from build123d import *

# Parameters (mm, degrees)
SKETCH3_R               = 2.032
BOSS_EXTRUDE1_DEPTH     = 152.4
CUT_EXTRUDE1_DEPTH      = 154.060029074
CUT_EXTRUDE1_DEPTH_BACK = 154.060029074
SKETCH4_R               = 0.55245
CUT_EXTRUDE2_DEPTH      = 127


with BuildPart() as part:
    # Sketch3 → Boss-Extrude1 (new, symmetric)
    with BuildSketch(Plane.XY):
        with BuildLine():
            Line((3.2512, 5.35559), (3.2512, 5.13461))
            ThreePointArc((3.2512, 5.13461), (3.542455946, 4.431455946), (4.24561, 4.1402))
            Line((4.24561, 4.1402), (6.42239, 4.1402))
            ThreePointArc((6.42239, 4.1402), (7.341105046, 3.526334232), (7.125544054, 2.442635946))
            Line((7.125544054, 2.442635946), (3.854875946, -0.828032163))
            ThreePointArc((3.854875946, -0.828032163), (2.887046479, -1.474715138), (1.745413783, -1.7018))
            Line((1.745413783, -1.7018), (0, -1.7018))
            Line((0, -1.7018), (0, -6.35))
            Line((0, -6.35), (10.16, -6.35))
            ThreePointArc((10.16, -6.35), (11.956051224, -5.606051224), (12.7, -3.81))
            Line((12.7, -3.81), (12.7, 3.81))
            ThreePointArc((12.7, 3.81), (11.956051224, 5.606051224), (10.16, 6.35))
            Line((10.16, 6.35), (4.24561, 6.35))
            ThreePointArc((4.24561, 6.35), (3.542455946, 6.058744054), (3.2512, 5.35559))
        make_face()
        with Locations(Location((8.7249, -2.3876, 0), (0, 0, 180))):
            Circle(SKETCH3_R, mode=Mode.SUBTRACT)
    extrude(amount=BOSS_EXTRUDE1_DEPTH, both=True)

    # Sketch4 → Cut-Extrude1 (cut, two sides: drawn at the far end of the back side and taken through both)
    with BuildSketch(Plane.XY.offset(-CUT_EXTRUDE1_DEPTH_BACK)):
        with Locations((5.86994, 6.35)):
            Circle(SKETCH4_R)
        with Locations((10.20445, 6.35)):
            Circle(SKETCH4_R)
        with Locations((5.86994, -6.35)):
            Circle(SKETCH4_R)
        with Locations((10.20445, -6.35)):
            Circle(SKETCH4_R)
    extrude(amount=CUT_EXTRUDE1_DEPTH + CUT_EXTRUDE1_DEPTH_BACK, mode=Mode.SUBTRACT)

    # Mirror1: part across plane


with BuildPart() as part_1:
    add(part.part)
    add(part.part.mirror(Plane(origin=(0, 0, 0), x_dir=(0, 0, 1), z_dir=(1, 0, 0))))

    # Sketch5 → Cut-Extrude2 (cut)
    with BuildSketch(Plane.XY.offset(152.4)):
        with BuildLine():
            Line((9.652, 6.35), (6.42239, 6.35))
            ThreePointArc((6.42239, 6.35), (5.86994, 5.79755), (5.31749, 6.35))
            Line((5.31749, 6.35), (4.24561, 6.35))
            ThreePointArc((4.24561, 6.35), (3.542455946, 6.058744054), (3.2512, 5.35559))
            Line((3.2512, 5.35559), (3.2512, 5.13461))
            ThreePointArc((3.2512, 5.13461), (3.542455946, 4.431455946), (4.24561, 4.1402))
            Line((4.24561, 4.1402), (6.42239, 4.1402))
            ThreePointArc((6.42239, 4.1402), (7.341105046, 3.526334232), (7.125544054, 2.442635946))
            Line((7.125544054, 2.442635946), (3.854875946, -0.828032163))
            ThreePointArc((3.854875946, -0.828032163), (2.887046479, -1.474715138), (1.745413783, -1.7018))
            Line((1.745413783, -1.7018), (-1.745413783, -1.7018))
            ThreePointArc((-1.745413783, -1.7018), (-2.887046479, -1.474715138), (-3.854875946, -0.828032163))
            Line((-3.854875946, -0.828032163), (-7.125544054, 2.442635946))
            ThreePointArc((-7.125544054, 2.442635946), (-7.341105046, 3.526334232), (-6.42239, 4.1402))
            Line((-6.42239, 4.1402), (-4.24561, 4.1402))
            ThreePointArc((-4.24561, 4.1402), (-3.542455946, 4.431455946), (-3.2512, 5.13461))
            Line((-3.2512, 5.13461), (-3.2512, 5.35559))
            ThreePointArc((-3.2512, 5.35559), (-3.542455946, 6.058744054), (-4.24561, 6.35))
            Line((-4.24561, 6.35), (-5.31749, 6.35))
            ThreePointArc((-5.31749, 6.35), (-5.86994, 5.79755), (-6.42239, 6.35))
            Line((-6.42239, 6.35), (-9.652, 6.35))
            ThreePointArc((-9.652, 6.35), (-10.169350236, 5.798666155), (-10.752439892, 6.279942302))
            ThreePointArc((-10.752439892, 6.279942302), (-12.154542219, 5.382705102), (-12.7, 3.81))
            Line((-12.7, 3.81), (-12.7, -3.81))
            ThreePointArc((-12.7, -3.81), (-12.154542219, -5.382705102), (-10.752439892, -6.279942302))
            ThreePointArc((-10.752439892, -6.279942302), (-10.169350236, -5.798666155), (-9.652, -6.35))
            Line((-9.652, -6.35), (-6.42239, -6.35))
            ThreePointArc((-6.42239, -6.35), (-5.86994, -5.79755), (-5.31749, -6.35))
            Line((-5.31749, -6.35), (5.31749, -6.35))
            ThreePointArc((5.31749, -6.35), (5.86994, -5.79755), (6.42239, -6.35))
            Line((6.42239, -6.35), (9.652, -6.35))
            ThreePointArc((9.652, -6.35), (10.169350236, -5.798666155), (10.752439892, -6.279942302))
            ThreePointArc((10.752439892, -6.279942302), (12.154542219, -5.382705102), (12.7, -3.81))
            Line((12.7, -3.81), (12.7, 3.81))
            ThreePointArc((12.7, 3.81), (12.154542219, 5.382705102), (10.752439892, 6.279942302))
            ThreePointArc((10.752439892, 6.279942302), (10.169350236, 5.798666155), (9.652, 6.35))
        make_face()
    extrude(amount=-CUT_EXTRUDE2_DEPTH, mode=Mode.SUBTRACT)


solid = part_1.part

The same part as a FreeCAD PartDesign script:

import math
import FreeCAD as App
import Part
import Sketcher
Q = App.Units.Quantity

doc = App.newDocument("Part")
body = doc.addObject("PartDesign::Body", "Body")

sketch1 = body.newObject("Sketcher::SketchObject", "Sketch")
sketch1.AttachmentSupport = (doc.getObject("XY_Plane"), [""])
sketch1.MapMode = "FlatFace"
sketch1.addGeometry(Part.LineSegment(App.Vector(3.25, 5.36, 0), App.Vector(3.25, 5.13, 0)), False)
sketch1.addGeometry(Part.ArcOfCircle(Part.Circle(App.Vector(4.25, 5.13, 0), App.Vector(0, 0, 1), 0.99), math.radians(-180), math.radians(-90)), False)
sketch1.addGeometry(Part.LineSegment(App.Vector(4.25, 4.14, 0), App.Vector(6.42, 4.14, 0)), False)
sketch1.addGeometry(Part.ArcOfCircle(Part.Circle(App.Vector(6.42, 3.15, 0), App.Vector(0, 0, 1), 0.99), math.radians(-45), math.radians(90)), False)
sketch1.addGeometry(Part.LineSegment(App.Vector(7.13, 2.44, 0), App.Vector(3.85, -0.83, 0)), False)
sketch1.addGeometry(Part.ArcOfCircle(Part.Circle(App.Vector(1.75, 1.28, 0), App.Vector(0, 0, 1), 2.98), math.radians(-90), math.radians(-45)), False)
sketch1.addGeometry(Part.LineSegment(App.Vector(1.75, -1.7, 0), App.Vector(0, -1.7, 0)), False)
sketch1.addGeometry(Part.LineSegment(App.Vector(0, -1.7, 0), App.Vector(0, -6.35, 0)), False)
sketch1.addGeometry(Part.LineSegment(App.Vector(0, -6.35, 0), App.Vector(10.16, -6.35, 0)), False)
sketch1.addGeometry(Part.ArcOfCircle(Part.Circle(App.Vector(10.16, -3.81, 0), App.Vector(0, 0, 1), 2.54), math.radians(-90), math.radians(0)), False)
sketch1.addGeometry(Part.LineSegment(App.Vector(12.7, -3.81, 0), App.Vector(12.7, 3.81, 0)), False)
sketch1.addGeometry(Part.ArcOfCircle(Part.Circle(App.Vector(10.16, 3.81, 0), App.Vector(0, 0, 1), 2.54), math.radians(0), math.radians(90)), False)
sketch1.addGeometry(Part.LineSegment(App.Vector(10.16, 6.35, 0), App.Vector(4.25, 6.35, 0)), False)
sketch1.addGeometry(Part.ArcOfCircle(Part.Circle(App.Vector(4.25, 5.36, 0), App.Vector(0, 0, 1), 0.99), math.radians(90), math.radians(180)), False)
sketch1.addGeometry(Part.Circle(App.Vector(8.72, -2.39, 0), App.Vector(0, 0, 1), 2.03), False)
sketch1.addConstraint(Sketcher.Constraint("Tangent", 0, 2, 1, 1))
sketch1.addConstraint(Sketcher.Constraint("Tangent", 1, 2, 2, 1))
sketch1.addConstraint(Sketcher.Constraint("Tangent", 2, 2, 3, 2))
sketch1.addConstraint(Sketcher.Constraint("Tangent", 3, 1, 4, 1))
sketch1.addConstraint(Sketcher.Constraint("Tangent", 4, 2, 5, 2))
sketch1.addConstraint(Sketcher.Constraint("Tangent", 5, 1, 6, 1))
sketch1.addConstraint(Sketcher.Constraint("Coincident", 6, 2, 7, 1))
sketch1.addConstraint(Sketcher.Constraint("Coincident", 7, 2, 8, 1))
sketch1.addConstraint(Sketcher.Constraint("Tangent", 8, 2, 9, 1))
sketch1.addConstraint(Sketcher.Constraint("Tangent", 9, 2, 10, 1))
sketch1.addConstraint(Sketcher.Constraint("Tangent", 10, 2, 11, 1))
sketch1.addConstraint(Sketcher.Constraint("Tangent", 11, 2, 12, 1))
sketch1.addConstraint(Sketcher.Constraint("Tangent", 12, 2, 13, 1))
sketch1.addConstraint(Sketcher.Constraint("Tangent", 13, 2, 0, 1))
sketch1.addConstraint(Sketcher.Constraint("Vertical", 0))
sketch1.addConstraint(Sketcher.Constraint("Horizontal", 2))
sketch1.addConstraint(Sketcher.Constraint("Horizontal", 6))
sketch1.addConstraint(Sketcher.Constraint("Vertical", 7))
sketch1.addConstraint(Sketcher.Constraint("Horizontal", 8))
sketch1.addConstraint(Sketcher.Constraint("Vertical", 10))
sketch1.addConstraint(Sketcher.Constraint("Horizontal", 12))
sketch1.addConstraint(Sketcher.Constraint("Equal", 1, 3))
sketch1.addConstraint(Sketcher.Constraint("Equal", 9, 11))
sketch1.addConstraint(Sketcher.Constraint("Equal", 3, 13))
sketch1.addConstraint(Sketcher.Constraint("PointOnObject", 6, 2, -2))
sketch1.addConstraint(Sketcher.Constraint("Radius", 9, Q("0.1 in")))
sketch1.addConstraint(Sketcher.Constraint("Diameter", 14, Q("0.16 in")))
sketch1.addConstraint(Sketcher.Constraint("DistanceX", 8, 1, 8, 2, Q("0.4 in")))
sketch1.addConstraint(Sketcher.Constraint("DistanceY", 10, 1, 10, 2, Q("0.3 in")))
sketch1.addConstraint(Sketcher.Constraint("Angle", 4, Q("-135 deg")))
sketch1.addConstraint(Sketcher.Constraint("DistanceY", 7, 2, 7, 1, Q("0.183 in")))
sketch1.addConstraint(Sketcher.Constraint("DistanceY", 9, 3, -1, 1, Q("0.15 in")))
sketch1.addConstraint(Sketcher.Constraint("DistanceY", 5, 1, 1, 2, Q("0.23 in")))
sketch1.addConstraint(Sketcher.Constraint("DistanceX", 2, 1, 2, 2, Q("0.0857 in")))
sketch1.addConstraint(Sketcher.Constraint("DistanceY", 0, 2, 0, 1, Q("0.0087 in")))
sketch1.addConstraint(Sketcher.Constraint("DistanceY", 14, 3, -1, 1, Q("0.094 in")))
sketch1.addConstraint(Sketcher.Constraint("DistanceX", -1, 1, 0, 2, Q("0.128 in")))
sketch1.addConstraint(Sketcher.Constraint("Radius", 5, 2.98323))
sketch1.addConstraint(Sketcher.Constraint("DistanceX", -1, 1, 14, 3, Q("0.3435 in")))
pad1 = body.newObject("PartDesign::Pad", "Pad")
pad1.Profile = sketch1
pad1.Length = Q("12 in")
pad1.Midplane = True

sketch2 = body.newObject("Sketcher::SketchObject", "Sketch001")
sketch2.AttachmentSupport = (doc.getObject("XY_Plane"), [""])
sketch2.MapMode = "FlatFace"
sketch2.addGeometry(Part.Circle(App.Vector(5.9, 6.3, 0), App.Vector(0, 0, 1), 0.6), False)
sketch2.addGeometry(Part.Circle(App.Vector(10.2, 6.3, 0), App.Vector(0, 0, 1), 0.6), False)
sketch2.addGeometry(Part.Circle(App.Vector(5.9, -6.3, 0), App.Vector(0, 0, 1), 0.6), False)
sketch2.addGeometry(Part.Circle(App.Vector(10.2, -6.3, 0), App.Vector(0, 0, 1), 0.6), False)
sketch2.addConstraint(Sketcher.Constraint("Equal", 0, 1))
sketch2.addConstraint(Sketcher.Constraint("Equal", 1, 2))
sketch2.addConstraint(Sketcher.Constraint("Equal", 2, 3))
sketch2.addConstraint(Sketcher.Constraint("Symmetric", 0, 3, 2, 3, -1))
sketch2.addConstraint(Sketcher.Constraint("Symmetric", 1, 3, 3, 3, -1))
sketch2.addConstraint(Sketcher.Constraint("Horizontal", 0, 3, 1, 3))
sketch2.addConstraint(Sketcher.Constraint("Diameter", 0, Q("0.0435 in")))
sketch2.addConstraint(Sketcher.Constraint("DistanceY", 2, 3, 0, 3, Q("0.5 in")))
sketch2.addConstraint(Sketcher.Constraint("DistanceX", -1, 1, 0, 3, Q("0.2311 in")))
sketch2.addConstraint(Sketcher.Constraint("DistanceX", -1, 1, 1, 3, 10.20445))
pocket1 = body.newObject("PartDesign::Pocket", "Pocket")
pocket1.Profile = sketch2
pocket1.Type = "ThroughAll"
pocket1.Midplane = True
body2 = doc.addObject("PartDesign::Body", "Body001")
doc.recompute()

body2.BaseFeature = body
doc.recompute()

mirroring = doc.addObject("Part::Mirroring", "Mirroring")
mirroring.Source = body
mirroring.Base = App.Vector(0, 0, 0)
mirroring.Normal = App.Vector(1, 0, 0)
body3 = doc.addObject("PartDesign::Body", "Body002")
body3.BaseFeature = mirroring
boolean = body2.newObject("PartDesign::Boolean", "Boolean")
boolean.Type = "Fuse"
boolean.addObjects([body3])
doc.recompute()

sketch3 = body2.newObject("Sketcher::SketchObject", "Sketch002")
sketch3.AttachmentSupport = (doc.getObject("XY_Plane001"), [""])
sketch3.MapMode = "FlatFace"
sketch3.AttachmentOffset = App.Placement(App.Vector(0, 0, 6 * 25.4), App.Rotation())
sketch3.addGeometry(Part.LineSegment(App.Vector(9.65, 6.35, 0), App.Vector(6.42, 6.35, 0)), False)
sketch3.addGeometry(Part.ArcOfCircle(Part.Circle(App.Vector(5.87, 6.35, 0), App.Vector(0, 0, 1), 0.55), math.radians(180), math.radians(360)), False)
sketch3.addGeometry(Part.LineSegment(App.Vector(5.32, 6.35, 0), App.Vector(4.25, 6.35, 0)), False)
sketch3.addGeometry(Part.ArcOfCircle(Part.Circle(App.Vector(4.25, 5.36, 0), App.Vector(0, 0, 1), 0.99), math.radians(90), math.radians(180)), False)
sketch3.addGeometry(Part.LineSegment(App.Vector(3.25, 5.36, 0), App.Vector(3.25, 5.13, 0)), False)
sketch3.addGeometry(Part.ArcOfCircle(Part.Circle(App.Vector(4.25, 5.13, 0), App.Vector(0, 0, 1), 0.99), math.radians(-180), math.radians(-90)), False)
sketch3.addGeometry(Part.LineSegment(App.Vector(4.25, 4.14, 0), App.Vector(6.42, 4.14, 0)), False)
sketch3.addGeometry(Part.ArcOfCircle(Part.Circle(App.Vector(6.42, 3.15, 0), App.Vector(0, 0, 1), 0.99), math.radians(-45), math.radians(90)), False)
sketch3.addGeometry(Part.LineSegment(App.Vector(7.13, 2.44, 0), App.Vector(3.85, -0.83, 0)), False)
sketch3.addGeometry(Part.ArcOfCircle(Part.Circle(App.Vector(1.75, 1.28, 0), App.Vector(0, 0, 1), 2.98), math.radians(-90), math.radians(-45)), False)
sketch3.addGeometry(Part.LineSegment(App.Vector(1.75, -1.7, 0), App.Vector(-1.75, -1.7, 0)), False)
sketch3.addGeometry(Part.ArcOfCircle(Part.Circle(App.Vector(-1.75, 1.28, 0), App.Vector(0, 0, 1), 2.98), math.radians(-135), math.radians(-90)), False)
sketch3.addGeometry(Part.LineSegment(App.Vector(-3.85, -0.83, 0), App.Vector(-7.13, 2.44, 0)), False)
sketch3.addGeometry(Part.ArcOfCircle(Part.Circle(App.Vector(-6.42, 3.15, 0), App.Vector(0, 0, 1), 0.99), math.radians(90), math.radians(225)), False)
sketch3.addGeometry(Part.LineSegment(App.Vector(-6.42, 4.14, 0), App.Vector(-4.25, 4.14, 0)), False)
sketch3.addGeometry(Part.ArcOfCircle(Part.Circle(App.Vector(-4.25, 5.13, 0), App.Vector(0, 0, 1), 0.99), math.radians(-90), math.radians(0)), False)
sketch3.addGeometry(Part.LineSegment(App.Vector(-3.25, 5.13, 0), App.Vector(-3.25, 5.36, 0)), False)
sketch3.addGeometry(Part.ArcOfCircle(Part.Circle(App.Vector(-4.25, 5.36, 0), App.Vector(0, 0, 1), 0.99), math.radians(0), math.radians(90)), False)
sketch3.addGeometry(Part.LineSegment(App.Vector(-4.25, 6.35, 0), App.Vector(-5.32, 6.35, 0)), False)
sketch3.addGeometry(Part.ArcOfCircle(Part.Circle(App.Vector(-5.87, 6.35, 0), App.Vector(0, 0, 1), 0.55), math.radians(180), math.radians(360)), False)
sketch3.addGeometry(Part.LineSegment(App.Vector(-6.42, 6.35, 0), App.Vector(-9.65, 6.35, 0)), False)
sketch3.addGeometry(Part.ArcOfCircle(Part.Circle(App.Vector(-10.2, 6.35, 0), App.Vector(0, 0, 1), 0.55), math.radians(-173), math.radians(0)), False)
sketch3.addGeometry(Part.ArcOfCircle(Part.Circle(App.Vector(-10.16, 3.81, 0), App.Vector(0, 0, 1), 2.54), math.radians(103), math.radians(180)), False)
sketch3.addGeometry(Part.LineSegment(App.Vector(-12.7, 3.81, 0), App.Vector(-12.7, -3.81, 0)), False)
sketch3.addGeometry(Part.ArcOfCircle(Part.Circle(App.Vector(-10.16, -3.81, 0), App.Vector(0, 0, 1), 2.54), math.radians(180), math.radians(257)), False)
sketch3.addGeometry(Part.ArcOfCircle(Part.Circle(App.Vector(-10.2, -6.35, 0), App.Vector(0, 0, 1), 0.55), math.radians(0), math.radians(173)), False)
sketch3.addGeometry(Part.LineSegment(App.Vector(-9.65, -6.35, 0), App.Vector(-6.42, -6.35, 0)), False)
sketch3.addGeometry(Part.ArcOfCircle(Part.Circle(App.Vector(-5.87, -6.35, 0), App.Vector(0, 0, 1), 0.55), math.radians(0), math.radians(180)), False)
sketch3.addGeometry(Part.LineSegment(App.Vector(-5.32, -6.35, 0), App.Vector(5.32, -6.35, 0)), False)
sketch3.addGeometry(Part.ArcOfCircle(Part.Circle(App.Vector(5.87, -6.35, 0), App.Vector(0, 0, 1), 0.55), math.radians(0), math.radians(180)), False)
sketch3.addGeometry(Part.LineSegment(App.Vector(6.42, -6.35, 0), App.Vector(9.65, -6.35, 0)), False)
sketch3.addGeometry(Part.ArcOfCircle(Part.Circle(App.Vector(10.2, -6.35, 0), App.Vector(0, 0, 1), 0.55), math.radians(7), math.radians(180)), False)
sketch3.addGeometry(Part.ArcOfCircle(Part.Circle(App.Vector(10.16, -3.81, 0), App.Vector(0, 0, 1), 2.54), math.radians(-77), math.radians(0)), False)
sketch3.addGeometry(Part.LineSegment(App.Vector(12.7, -3.81, 0), App.Vector(12.7, 3.81, 0)), False)
sketch3.addGeometry(Part.ArcOfCircle(Part.Circle(App.Vector(10.16, 3.81, 0), App.Vector(0, 0, 1), 2.54), math.radians(0), math.radians(77)), False)
sketch3.addGeometry(Part.ArcOfCircle(Part.Circle(App.Vector(10.2, 6.35, 0), App.Vector(0, 0, 1), 0.55), math.radians(-180), math.radians(-7)), False)
sketch3.addConstraint(Sketcher.Constraint("Coincident", 0, 2, 1, 2))
sketch3.addConstraint(Sketcher.Constraint("Coincident", 1, 1, 2, 1))
sketch3.addConstraint(Sketcher.Constraint("Tangent", 2, 2, 3, 1))
sketch3.addConstraint(Sketcher.Constraint("Tangent", 3, 2, 4, 1))
sketch3.addConstraint(Sketcher.Constraint("Tangent", 4, 2, 5, 1))
sketch3.addConstraint(Sketcher.Constraint("Tangent", 5, 2, 6, 1))
sketch3.addConstraint(Sketcher.Constraint("Tangent", 6, 2, 7, 2))
sketch3.addConstraint(Sketcher.Constraint("Tangent", 7, 1, 8, 1))
sketch3.addConstraint(Sketcher.Constraint("Tangent", 8, 2, 9, 2))
sketch3.addConstraint(Sketcher.Constraint("Tangent", 9, 1, 10, 1))
sketch3.addConstraint(Sketcher.Constraint("Tangent", 10, 2, 11, 2))
sketch3.addConstraint(Sketcher.Constraint("Tangent", 11, 1, 12, 1))
sketch3.addConstraint(Sketcher.Constraint("Tangent", 12, 2, 13, 2))
sketch3.addConstraint(Sketcher.Constraint("Tangent", 13, 1, 14, 1))
sketch3.addConstraint(Sketcher.Constraint("Tangent", 14, 2, 15, 1))
sketch3.addConstraint(Sketcher.Constraint("Tangent", 15, 2, 16, 1))
sketch3.addConstraint(Sketcher.Constraint("Tangent", 16, 2, 17, 1))
sketch3.addConstraint(Sketcher.Constraint("Tangent", 17, 2, 18, 1))
sketch3.addConstraint(Sketcher.Constraint("Coincident", 18, 2, 19, 2))
sketch3.addConstraint(Sketcher.Constraint("Coincident", 19, 1, 20, 1))
sketch3.addConstraint(Sketcher.Constraint("Coincident", 20, 2, 21, 2))
sketch3.addConstraint(Sketcher.Constraint("Coincident", 21, 1, 22, 1))
sketch3.addConstraint(Sketcher.Constraint("Tangent", 22, 2, 23, 1))
sketch3.addConstraint(Sketcher.Constraint("Tangent", 23, 2, 24, 1))
sketch3.addConstraint(Sketcher.Constraint("Coincident", 24, 2, 25, 2))
sketch3.addConstraint(Sketcher.Constraint("Coincident", 25, 1, 26, 1))
sketch3.addConstraint(Sketcher.Constraint("Coincident", 26, 2, 27, 2))
sketch3.addConstraint(Sketcher.Constraint("Coincident", 27, 1, 28, 1))
sketch3.addConstraint(Sketcher.Constraint("Coincident", 28, 2, 29, 2))
sketch3.addConstraint(Sketcher.Constraint("Coincident", 29, 1, 30, 1))
sketch3.addConstraint(Sketcher.Constraint("Coincident", 30, 2, 31, 2))
sketch3.addConstraint(Sketcher.Constraint("Coincident", 31, 1, 32, 1))
sketch3.addConstraint(Sketcher.Constraint("Tangent", 32, 2, 33, 1))
sketch3.addConstraint(Sketcher.Constraint("Tangent", 33, 2, 34, 1))
sketch3.addConstraint(Sketcher.Constraint("Coincident", 34, 2, 35, 2))
sketch3.addConstraint(Sketcher.Constraint("Coincident", 35, 1, 0, 1))
sketch3.addConstraint(Sketcher.Constraint("Horizontal", 0))
sketch3.addConstraint(Sketcher.Constraint("Horizontal", 2))
sketch3.addConstraint(Sketcher.Constraint("Vertical", 4))
sketch3.addConstraint(Sketcher.Constraint("Horizontal", 6))
sketch3.addConstraint(Sketcher.Constraint("Horizontal", 10))
sketch3.addConstraint(Sketcher.Constraint("Horizontal", 14))
sketch3.addConstraint(Sketcher.Constraint("Vertical", 16))
sketch3.addConstraint(Sketcher.Constraint("Horizontal", 18))
sketch3.addConstraint(Sketcher.Constraint("Horizontal", 20))
sketch3.addConstraint(Sketcher.Constraint("Vertical", 23))
sketch3.addConstraint(Sketcher.Constraint("Horizontal", 26))
sketch3.addConstraint(Sketcher.Constraint("Horizontal", 28))
sketch3.addConstraint(Sketcher.Constraint("Horizontal", 30))
sketch3.addConstraint(Sketcher.Constraint("Vertical", 33))
sketch3.addConstraint(Sketcher.Constraint("Equal", 3, 5))
sketch3.addConstraint(Sketcher.Constraint("Equal", 5, 7))
sketch3.addConstraint(Sketcher.Constraint("Equal", 9, 11))
sketch3.addConstraint(Sketcher.Constraint("Equal", 7, 13))
sketch3.addConstraint(Sketcher.Constraint("Equal", 13, 15))
sketch3.addConstraint(Sketcher.Constraint("Equal", 15, 17))
sketch3.addConstraint(Sketcher.Constraint("Equal", 1, 19))
sketch3.addConstraint(Sketcher.Constraint("Equal", 19, 21))
sketch3.addConstraint(Sketcher.Constraint("Equal", 22, 24))
sketch3.addConstraint(Sketcher.Constraint("Equal", 21, 25))
sketch3.addConstraint(Sketcher.Constraint("Equal", 25, 27))
sketch3.addConstraint(Sketcher.Constraint("Equal", 27, 29))
sketch3.addConstraint(Sketcher.Constraint("Equal", 29, 31))
sketch3.addConstraint(Sketcher.Constraint("Equal", 24, 32))
sketch3.addConstraint(Sketcher.Constraint("Equal", 32, 34))
sketch3.addConstraint(Sketcher.Constraint("Equal", 31, 35))
sketch3.addConstraint(Sketcher.Constraint("Symmetric", 1, 3, 27, 3, -1, 1))
sketch3.addConstraint(Sketcher.Constraint("Symmetric", 19, 3, 29, 3, -1, 1))
sketch3.addConstraint(Sketcher.Constraint("Symmetric", 21, 3, 31, 3, -1, 1))
sketch3.addConstraint(Sketcher.Constraint("Symmetric", 22, 3, 32, 3, -1, 1))
sketch3.addConstraint(Sketcher.Constraint("Symmetric", 25, 3, 35, 3, -1, 1))
sketch3.addConstraint(Sketcher.Constraint("Symmetric", 7, 3, 13, 3, -2))
sketch3.addConstraint(Sketcher.Constraint("Symmetric", 3, 3, 17, 3, -2))
sketch3.addConstraint(Sketcher.Constraint("Symmetric", 1, 3, 19, 3, -2))
sketch3.addConstraint(Sketcher.Constraint("Symmetric", 25, 3, 31, 3, -2))
sketch3.addConstraint(Sketcher.Constraint("Perpendicular", 8, 12))
sketch3.addConstraint(Sketcher.Constraint("Horizontal", 19, 3, 21, 3))
sketch3.addConstraint(Sketcher.Constraint("Horizontal", 24, 3, 32, 3))
sketch3.addConstraint(Sketcher.Constraint("Horizontal", 22, 3, 34, 3))
sketch3.addConstraint(Sketcher.Constraint("Horizontal", 35, 3, 0, 2))
sketch3.addConstraint(Sketcher.Constraint("Horizontal", 0, 2, 1, 1))
sketch3.addConstraint(Sketcher.Constraint("Horizontal", 8, 2, 11, 1))
sketch3.addConstraint(Sketcher.Constraint("Horizontal", 18, 2, 19, 1))
sketch3.addConstraint(Sketcher.Constraint("Horizontal", 31, 3, 25, 1))
sketch3.addConstraint(Sketcher.Constraint("Horizontal", 26, 2, 27, 1))
sketch3.addConstraint(Sketcher.Constraint("Horizontal", 28, 2, 29, 1))
sketch3.addConstraint(Sketcher.Constraint("Vertical", 7, 3, 0, 2))
sketch3.addConstraint(Sketcher.Constraint("Radius", 22, Q("0.1 in")))
sketch3.addConstraint(Sketcher.Constraint("DistanceY", 23, 2, 23, 1, Q("0.3 in")))
sketch3.addConstraint(Sketcher.Constraint("DistanceX", 22, 3, -1, 1, Q("0.4 in")))
sketch3.addConstraint(Sketcher.Constraint("DistanceY", 22, 3, 21, 3, Q("0.1 in")))
sketch3.addConstraint(Sketcher.Constraint("DistanceX", 20, 2, -1, 1, Q("0.38 in")))
sketch3.addConstraint(Sketcher.Constraint("DistanceX", 13, 3, 5, 3, Q("0.42 in")))
sketch3.addConstraint(Sketcher.Constraint("DistanceY", 9, 1, 5, 2, Q("0.23 in")))
sketch3.addConstraint(Sketcher.Constraint("DistanceX", 2, 2, 2, 1, Q("0.0422 in")))
sketch3.addConstraint(Sketcher.Constraint("DistanceX", 6, 1, 6, 2, Q("0.0857 in")))
sketch3.addConstraint(Sketcher.Constraint("DistanceY", 4, 2, 4, 1, Q("0.0087 in")))
sketch3.addConstraint(Sketcher.Constraint("DistanceX", -1, 1, 3, 2, Q("0.128 in")))
sketch3.addConstraint(Sketcher.Constraint("Radius", 9, 2.98323))
pocket2 = body2.newObject("PartDesign::Pocket", "Pocket001")
pocket2.Profile = sketch3
pocket2.Length = Q("5 in")
mirroring.Visibility = False

doc.recompute()
